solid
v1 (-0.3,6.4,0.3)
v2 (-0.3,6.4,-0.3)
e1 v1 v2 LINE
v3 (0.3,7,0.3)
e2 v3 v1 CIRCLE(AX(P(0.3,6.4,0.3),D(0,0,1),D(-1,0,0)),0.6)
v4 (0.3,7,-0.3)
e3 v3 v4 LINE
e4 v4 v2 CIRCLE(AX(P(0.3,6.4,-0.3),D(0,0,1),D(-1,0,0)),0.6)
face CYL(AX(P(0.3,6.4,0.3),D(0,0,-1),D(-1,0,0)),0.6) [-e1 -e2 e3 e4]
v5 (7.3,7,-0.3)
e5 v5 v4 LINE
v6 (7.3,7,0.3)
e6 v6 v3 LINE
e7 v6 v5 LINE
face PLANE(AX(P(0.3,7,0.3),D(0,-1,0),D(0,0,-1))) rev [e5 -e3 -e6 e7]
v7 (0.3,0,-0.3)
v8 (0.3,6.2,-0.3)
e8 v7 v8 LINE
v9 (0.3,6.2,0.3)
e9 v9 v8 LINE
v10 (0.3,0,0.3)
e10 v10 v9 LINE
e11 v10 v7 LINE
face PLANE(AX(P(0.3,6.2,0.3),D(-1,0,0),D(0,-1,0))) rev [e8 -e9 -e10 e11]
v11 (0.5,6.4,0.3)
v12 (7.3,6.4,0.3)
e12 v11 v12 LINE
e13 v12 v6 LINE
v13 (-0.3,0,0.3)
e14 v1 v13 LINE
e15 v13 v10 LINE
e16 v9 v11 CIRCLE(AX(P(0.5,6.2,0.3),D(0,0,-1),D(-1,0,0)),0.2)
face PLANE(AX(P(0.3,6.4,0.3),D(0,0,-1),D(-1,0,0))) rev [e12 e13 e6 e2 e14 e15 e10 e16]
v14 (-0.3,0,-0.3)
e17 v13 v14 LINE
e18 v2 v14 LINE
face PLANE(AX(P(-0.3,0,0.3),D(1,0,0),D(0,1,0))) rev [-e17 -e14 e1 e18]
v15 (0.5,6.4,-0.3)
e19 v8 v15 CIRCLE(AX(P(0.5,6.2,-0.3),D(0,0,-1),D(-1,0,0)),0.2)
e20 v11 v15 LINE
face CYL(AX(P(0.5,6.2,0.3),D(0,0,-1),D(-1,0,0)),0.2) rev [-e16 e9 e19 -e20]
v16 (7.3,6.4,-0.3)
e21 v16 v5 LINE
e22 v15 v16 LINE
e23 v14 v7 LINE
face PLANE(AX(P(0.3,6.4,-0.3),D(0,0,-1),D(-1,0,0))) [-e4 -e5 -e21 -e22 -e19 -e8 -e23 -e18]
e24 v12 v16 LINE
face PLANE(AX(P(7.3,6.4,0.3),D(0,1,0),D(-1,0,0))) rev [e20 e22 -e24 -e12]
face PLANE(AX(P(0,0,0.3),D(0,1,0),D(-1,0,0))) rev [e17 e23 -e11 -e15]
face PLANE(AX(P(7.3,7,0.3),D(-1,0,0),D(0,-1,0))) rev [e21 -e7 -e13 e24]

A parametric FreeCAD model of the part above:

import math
import FreeCAD as App
import Part
import Sketcher
from FreeCAD import Vector
Q = App.Units.Quantity

doc = App.newDocument("Part")
body = doc.addObject("PartDesign::Body", "Body")

# Sketch on XY plane
sketch1 = body.newObject("Sketcher::SketchObject", "Sketch")
sketch1.AttachmentSupport = (doc.getObject("XY_Plane"), [""])
sketch1.MapMode = "FlatFace"
sketch1.addGeometry([
    Part.LineSegment(Vector(-0.3, 6.4, 0), Vector(-0.3, 0, 0)),  # 0
    Part.LineSegment(Vector(-0.3, 0, 0), Vector(0.3, 0, 0)),  # 1
    Part.LineSegment(Vector(0.3, 0, 0), Vector(0.3, 6.2, 0)),  # 2
    Part.ArcOfCircle(Part.Circle(Vector(0.5, 6.2, 0), Vector(0, 0, 1), 0.2), math.radians(90), math.radians(180)),  # 3
    Part.LineSegment(Vector(0.5, 6.4, 0), Vector(7.3, 6.4, 0)),  # 4
    Part.LineSegment(Vector(7.3, 6.4, 0), Vector(7.3, 7, 0)),  # 5
    Part.LineSegment(Vector(7.3, 7, 0), Vector(0.3, 7, 0)),  # 6
    Part.ArcOfCircle(Part.Circle(Vector(0.3, 6.4, 0), Vector(0, 0, 1), 0.6), math.radians(90), math.radians(180)),  # 7
], False)
sketch1.addConstraint([
    Sketcher.Constraint("Coincident", 0, 2, 1, 1),
    Sketcher.Constraint("Coincident", 1, 2, 2, 1),
    Sketcher.Constraint("Tangent", 2, 2, 3, 2),
    Sketcher.Constraint("Tangent", 3, 1, 4, 1),
    Sketcher.Constraint("Coincident", 4, 2, 5, 1),
    Sketcher.Constraint("Coincident", 5, 2, 6, 1),
    Sketcher.Constraint("Tangent", 6, 2, 7, 1),
    Sketcher.Constraint("Tangent", 7, 2, 0, 1),
    Sketcher.Constraint("Vertical", 0),
    Sketcher.Constraint("Horizontal", 1),
    Sketcher.Constraint("Vertical", 2),
    Sketcher.Constraint("Horizontal", 4),
    Sketcher.Constraint("Vertical", 5),
    Sketcher.Constraint("Horizontal", 6),
    Sketcher.Constraint("Symmetric", 0, 2, 1, 2, -1, 1),
    Sketcher.Constraint("Horizontal", 7, 3, 3, 1),
    Sketcher.Constraint("Vertical", 7, 3, 1, 2),
    Sketcher.Constraint("Radius", 3, Q("0.2 mm")),
    Sketcher.Constraint("Radius", 7, Q("0.6 mm")),
    Sketcher.Constraint("DistanceX", 6, 2, 6, 1, Q("7 mm")),
    Sketcher.Constraint("DistanceY", 0, 2, 0, 1, Q("6.4 mm")),
])
pad1 = body.newObject("PartDesign::Pad", "Pad")
pad1.Profile = sketch1
pad1.Length = 0.6
pad1.Midplane = True

doc.recompute()
